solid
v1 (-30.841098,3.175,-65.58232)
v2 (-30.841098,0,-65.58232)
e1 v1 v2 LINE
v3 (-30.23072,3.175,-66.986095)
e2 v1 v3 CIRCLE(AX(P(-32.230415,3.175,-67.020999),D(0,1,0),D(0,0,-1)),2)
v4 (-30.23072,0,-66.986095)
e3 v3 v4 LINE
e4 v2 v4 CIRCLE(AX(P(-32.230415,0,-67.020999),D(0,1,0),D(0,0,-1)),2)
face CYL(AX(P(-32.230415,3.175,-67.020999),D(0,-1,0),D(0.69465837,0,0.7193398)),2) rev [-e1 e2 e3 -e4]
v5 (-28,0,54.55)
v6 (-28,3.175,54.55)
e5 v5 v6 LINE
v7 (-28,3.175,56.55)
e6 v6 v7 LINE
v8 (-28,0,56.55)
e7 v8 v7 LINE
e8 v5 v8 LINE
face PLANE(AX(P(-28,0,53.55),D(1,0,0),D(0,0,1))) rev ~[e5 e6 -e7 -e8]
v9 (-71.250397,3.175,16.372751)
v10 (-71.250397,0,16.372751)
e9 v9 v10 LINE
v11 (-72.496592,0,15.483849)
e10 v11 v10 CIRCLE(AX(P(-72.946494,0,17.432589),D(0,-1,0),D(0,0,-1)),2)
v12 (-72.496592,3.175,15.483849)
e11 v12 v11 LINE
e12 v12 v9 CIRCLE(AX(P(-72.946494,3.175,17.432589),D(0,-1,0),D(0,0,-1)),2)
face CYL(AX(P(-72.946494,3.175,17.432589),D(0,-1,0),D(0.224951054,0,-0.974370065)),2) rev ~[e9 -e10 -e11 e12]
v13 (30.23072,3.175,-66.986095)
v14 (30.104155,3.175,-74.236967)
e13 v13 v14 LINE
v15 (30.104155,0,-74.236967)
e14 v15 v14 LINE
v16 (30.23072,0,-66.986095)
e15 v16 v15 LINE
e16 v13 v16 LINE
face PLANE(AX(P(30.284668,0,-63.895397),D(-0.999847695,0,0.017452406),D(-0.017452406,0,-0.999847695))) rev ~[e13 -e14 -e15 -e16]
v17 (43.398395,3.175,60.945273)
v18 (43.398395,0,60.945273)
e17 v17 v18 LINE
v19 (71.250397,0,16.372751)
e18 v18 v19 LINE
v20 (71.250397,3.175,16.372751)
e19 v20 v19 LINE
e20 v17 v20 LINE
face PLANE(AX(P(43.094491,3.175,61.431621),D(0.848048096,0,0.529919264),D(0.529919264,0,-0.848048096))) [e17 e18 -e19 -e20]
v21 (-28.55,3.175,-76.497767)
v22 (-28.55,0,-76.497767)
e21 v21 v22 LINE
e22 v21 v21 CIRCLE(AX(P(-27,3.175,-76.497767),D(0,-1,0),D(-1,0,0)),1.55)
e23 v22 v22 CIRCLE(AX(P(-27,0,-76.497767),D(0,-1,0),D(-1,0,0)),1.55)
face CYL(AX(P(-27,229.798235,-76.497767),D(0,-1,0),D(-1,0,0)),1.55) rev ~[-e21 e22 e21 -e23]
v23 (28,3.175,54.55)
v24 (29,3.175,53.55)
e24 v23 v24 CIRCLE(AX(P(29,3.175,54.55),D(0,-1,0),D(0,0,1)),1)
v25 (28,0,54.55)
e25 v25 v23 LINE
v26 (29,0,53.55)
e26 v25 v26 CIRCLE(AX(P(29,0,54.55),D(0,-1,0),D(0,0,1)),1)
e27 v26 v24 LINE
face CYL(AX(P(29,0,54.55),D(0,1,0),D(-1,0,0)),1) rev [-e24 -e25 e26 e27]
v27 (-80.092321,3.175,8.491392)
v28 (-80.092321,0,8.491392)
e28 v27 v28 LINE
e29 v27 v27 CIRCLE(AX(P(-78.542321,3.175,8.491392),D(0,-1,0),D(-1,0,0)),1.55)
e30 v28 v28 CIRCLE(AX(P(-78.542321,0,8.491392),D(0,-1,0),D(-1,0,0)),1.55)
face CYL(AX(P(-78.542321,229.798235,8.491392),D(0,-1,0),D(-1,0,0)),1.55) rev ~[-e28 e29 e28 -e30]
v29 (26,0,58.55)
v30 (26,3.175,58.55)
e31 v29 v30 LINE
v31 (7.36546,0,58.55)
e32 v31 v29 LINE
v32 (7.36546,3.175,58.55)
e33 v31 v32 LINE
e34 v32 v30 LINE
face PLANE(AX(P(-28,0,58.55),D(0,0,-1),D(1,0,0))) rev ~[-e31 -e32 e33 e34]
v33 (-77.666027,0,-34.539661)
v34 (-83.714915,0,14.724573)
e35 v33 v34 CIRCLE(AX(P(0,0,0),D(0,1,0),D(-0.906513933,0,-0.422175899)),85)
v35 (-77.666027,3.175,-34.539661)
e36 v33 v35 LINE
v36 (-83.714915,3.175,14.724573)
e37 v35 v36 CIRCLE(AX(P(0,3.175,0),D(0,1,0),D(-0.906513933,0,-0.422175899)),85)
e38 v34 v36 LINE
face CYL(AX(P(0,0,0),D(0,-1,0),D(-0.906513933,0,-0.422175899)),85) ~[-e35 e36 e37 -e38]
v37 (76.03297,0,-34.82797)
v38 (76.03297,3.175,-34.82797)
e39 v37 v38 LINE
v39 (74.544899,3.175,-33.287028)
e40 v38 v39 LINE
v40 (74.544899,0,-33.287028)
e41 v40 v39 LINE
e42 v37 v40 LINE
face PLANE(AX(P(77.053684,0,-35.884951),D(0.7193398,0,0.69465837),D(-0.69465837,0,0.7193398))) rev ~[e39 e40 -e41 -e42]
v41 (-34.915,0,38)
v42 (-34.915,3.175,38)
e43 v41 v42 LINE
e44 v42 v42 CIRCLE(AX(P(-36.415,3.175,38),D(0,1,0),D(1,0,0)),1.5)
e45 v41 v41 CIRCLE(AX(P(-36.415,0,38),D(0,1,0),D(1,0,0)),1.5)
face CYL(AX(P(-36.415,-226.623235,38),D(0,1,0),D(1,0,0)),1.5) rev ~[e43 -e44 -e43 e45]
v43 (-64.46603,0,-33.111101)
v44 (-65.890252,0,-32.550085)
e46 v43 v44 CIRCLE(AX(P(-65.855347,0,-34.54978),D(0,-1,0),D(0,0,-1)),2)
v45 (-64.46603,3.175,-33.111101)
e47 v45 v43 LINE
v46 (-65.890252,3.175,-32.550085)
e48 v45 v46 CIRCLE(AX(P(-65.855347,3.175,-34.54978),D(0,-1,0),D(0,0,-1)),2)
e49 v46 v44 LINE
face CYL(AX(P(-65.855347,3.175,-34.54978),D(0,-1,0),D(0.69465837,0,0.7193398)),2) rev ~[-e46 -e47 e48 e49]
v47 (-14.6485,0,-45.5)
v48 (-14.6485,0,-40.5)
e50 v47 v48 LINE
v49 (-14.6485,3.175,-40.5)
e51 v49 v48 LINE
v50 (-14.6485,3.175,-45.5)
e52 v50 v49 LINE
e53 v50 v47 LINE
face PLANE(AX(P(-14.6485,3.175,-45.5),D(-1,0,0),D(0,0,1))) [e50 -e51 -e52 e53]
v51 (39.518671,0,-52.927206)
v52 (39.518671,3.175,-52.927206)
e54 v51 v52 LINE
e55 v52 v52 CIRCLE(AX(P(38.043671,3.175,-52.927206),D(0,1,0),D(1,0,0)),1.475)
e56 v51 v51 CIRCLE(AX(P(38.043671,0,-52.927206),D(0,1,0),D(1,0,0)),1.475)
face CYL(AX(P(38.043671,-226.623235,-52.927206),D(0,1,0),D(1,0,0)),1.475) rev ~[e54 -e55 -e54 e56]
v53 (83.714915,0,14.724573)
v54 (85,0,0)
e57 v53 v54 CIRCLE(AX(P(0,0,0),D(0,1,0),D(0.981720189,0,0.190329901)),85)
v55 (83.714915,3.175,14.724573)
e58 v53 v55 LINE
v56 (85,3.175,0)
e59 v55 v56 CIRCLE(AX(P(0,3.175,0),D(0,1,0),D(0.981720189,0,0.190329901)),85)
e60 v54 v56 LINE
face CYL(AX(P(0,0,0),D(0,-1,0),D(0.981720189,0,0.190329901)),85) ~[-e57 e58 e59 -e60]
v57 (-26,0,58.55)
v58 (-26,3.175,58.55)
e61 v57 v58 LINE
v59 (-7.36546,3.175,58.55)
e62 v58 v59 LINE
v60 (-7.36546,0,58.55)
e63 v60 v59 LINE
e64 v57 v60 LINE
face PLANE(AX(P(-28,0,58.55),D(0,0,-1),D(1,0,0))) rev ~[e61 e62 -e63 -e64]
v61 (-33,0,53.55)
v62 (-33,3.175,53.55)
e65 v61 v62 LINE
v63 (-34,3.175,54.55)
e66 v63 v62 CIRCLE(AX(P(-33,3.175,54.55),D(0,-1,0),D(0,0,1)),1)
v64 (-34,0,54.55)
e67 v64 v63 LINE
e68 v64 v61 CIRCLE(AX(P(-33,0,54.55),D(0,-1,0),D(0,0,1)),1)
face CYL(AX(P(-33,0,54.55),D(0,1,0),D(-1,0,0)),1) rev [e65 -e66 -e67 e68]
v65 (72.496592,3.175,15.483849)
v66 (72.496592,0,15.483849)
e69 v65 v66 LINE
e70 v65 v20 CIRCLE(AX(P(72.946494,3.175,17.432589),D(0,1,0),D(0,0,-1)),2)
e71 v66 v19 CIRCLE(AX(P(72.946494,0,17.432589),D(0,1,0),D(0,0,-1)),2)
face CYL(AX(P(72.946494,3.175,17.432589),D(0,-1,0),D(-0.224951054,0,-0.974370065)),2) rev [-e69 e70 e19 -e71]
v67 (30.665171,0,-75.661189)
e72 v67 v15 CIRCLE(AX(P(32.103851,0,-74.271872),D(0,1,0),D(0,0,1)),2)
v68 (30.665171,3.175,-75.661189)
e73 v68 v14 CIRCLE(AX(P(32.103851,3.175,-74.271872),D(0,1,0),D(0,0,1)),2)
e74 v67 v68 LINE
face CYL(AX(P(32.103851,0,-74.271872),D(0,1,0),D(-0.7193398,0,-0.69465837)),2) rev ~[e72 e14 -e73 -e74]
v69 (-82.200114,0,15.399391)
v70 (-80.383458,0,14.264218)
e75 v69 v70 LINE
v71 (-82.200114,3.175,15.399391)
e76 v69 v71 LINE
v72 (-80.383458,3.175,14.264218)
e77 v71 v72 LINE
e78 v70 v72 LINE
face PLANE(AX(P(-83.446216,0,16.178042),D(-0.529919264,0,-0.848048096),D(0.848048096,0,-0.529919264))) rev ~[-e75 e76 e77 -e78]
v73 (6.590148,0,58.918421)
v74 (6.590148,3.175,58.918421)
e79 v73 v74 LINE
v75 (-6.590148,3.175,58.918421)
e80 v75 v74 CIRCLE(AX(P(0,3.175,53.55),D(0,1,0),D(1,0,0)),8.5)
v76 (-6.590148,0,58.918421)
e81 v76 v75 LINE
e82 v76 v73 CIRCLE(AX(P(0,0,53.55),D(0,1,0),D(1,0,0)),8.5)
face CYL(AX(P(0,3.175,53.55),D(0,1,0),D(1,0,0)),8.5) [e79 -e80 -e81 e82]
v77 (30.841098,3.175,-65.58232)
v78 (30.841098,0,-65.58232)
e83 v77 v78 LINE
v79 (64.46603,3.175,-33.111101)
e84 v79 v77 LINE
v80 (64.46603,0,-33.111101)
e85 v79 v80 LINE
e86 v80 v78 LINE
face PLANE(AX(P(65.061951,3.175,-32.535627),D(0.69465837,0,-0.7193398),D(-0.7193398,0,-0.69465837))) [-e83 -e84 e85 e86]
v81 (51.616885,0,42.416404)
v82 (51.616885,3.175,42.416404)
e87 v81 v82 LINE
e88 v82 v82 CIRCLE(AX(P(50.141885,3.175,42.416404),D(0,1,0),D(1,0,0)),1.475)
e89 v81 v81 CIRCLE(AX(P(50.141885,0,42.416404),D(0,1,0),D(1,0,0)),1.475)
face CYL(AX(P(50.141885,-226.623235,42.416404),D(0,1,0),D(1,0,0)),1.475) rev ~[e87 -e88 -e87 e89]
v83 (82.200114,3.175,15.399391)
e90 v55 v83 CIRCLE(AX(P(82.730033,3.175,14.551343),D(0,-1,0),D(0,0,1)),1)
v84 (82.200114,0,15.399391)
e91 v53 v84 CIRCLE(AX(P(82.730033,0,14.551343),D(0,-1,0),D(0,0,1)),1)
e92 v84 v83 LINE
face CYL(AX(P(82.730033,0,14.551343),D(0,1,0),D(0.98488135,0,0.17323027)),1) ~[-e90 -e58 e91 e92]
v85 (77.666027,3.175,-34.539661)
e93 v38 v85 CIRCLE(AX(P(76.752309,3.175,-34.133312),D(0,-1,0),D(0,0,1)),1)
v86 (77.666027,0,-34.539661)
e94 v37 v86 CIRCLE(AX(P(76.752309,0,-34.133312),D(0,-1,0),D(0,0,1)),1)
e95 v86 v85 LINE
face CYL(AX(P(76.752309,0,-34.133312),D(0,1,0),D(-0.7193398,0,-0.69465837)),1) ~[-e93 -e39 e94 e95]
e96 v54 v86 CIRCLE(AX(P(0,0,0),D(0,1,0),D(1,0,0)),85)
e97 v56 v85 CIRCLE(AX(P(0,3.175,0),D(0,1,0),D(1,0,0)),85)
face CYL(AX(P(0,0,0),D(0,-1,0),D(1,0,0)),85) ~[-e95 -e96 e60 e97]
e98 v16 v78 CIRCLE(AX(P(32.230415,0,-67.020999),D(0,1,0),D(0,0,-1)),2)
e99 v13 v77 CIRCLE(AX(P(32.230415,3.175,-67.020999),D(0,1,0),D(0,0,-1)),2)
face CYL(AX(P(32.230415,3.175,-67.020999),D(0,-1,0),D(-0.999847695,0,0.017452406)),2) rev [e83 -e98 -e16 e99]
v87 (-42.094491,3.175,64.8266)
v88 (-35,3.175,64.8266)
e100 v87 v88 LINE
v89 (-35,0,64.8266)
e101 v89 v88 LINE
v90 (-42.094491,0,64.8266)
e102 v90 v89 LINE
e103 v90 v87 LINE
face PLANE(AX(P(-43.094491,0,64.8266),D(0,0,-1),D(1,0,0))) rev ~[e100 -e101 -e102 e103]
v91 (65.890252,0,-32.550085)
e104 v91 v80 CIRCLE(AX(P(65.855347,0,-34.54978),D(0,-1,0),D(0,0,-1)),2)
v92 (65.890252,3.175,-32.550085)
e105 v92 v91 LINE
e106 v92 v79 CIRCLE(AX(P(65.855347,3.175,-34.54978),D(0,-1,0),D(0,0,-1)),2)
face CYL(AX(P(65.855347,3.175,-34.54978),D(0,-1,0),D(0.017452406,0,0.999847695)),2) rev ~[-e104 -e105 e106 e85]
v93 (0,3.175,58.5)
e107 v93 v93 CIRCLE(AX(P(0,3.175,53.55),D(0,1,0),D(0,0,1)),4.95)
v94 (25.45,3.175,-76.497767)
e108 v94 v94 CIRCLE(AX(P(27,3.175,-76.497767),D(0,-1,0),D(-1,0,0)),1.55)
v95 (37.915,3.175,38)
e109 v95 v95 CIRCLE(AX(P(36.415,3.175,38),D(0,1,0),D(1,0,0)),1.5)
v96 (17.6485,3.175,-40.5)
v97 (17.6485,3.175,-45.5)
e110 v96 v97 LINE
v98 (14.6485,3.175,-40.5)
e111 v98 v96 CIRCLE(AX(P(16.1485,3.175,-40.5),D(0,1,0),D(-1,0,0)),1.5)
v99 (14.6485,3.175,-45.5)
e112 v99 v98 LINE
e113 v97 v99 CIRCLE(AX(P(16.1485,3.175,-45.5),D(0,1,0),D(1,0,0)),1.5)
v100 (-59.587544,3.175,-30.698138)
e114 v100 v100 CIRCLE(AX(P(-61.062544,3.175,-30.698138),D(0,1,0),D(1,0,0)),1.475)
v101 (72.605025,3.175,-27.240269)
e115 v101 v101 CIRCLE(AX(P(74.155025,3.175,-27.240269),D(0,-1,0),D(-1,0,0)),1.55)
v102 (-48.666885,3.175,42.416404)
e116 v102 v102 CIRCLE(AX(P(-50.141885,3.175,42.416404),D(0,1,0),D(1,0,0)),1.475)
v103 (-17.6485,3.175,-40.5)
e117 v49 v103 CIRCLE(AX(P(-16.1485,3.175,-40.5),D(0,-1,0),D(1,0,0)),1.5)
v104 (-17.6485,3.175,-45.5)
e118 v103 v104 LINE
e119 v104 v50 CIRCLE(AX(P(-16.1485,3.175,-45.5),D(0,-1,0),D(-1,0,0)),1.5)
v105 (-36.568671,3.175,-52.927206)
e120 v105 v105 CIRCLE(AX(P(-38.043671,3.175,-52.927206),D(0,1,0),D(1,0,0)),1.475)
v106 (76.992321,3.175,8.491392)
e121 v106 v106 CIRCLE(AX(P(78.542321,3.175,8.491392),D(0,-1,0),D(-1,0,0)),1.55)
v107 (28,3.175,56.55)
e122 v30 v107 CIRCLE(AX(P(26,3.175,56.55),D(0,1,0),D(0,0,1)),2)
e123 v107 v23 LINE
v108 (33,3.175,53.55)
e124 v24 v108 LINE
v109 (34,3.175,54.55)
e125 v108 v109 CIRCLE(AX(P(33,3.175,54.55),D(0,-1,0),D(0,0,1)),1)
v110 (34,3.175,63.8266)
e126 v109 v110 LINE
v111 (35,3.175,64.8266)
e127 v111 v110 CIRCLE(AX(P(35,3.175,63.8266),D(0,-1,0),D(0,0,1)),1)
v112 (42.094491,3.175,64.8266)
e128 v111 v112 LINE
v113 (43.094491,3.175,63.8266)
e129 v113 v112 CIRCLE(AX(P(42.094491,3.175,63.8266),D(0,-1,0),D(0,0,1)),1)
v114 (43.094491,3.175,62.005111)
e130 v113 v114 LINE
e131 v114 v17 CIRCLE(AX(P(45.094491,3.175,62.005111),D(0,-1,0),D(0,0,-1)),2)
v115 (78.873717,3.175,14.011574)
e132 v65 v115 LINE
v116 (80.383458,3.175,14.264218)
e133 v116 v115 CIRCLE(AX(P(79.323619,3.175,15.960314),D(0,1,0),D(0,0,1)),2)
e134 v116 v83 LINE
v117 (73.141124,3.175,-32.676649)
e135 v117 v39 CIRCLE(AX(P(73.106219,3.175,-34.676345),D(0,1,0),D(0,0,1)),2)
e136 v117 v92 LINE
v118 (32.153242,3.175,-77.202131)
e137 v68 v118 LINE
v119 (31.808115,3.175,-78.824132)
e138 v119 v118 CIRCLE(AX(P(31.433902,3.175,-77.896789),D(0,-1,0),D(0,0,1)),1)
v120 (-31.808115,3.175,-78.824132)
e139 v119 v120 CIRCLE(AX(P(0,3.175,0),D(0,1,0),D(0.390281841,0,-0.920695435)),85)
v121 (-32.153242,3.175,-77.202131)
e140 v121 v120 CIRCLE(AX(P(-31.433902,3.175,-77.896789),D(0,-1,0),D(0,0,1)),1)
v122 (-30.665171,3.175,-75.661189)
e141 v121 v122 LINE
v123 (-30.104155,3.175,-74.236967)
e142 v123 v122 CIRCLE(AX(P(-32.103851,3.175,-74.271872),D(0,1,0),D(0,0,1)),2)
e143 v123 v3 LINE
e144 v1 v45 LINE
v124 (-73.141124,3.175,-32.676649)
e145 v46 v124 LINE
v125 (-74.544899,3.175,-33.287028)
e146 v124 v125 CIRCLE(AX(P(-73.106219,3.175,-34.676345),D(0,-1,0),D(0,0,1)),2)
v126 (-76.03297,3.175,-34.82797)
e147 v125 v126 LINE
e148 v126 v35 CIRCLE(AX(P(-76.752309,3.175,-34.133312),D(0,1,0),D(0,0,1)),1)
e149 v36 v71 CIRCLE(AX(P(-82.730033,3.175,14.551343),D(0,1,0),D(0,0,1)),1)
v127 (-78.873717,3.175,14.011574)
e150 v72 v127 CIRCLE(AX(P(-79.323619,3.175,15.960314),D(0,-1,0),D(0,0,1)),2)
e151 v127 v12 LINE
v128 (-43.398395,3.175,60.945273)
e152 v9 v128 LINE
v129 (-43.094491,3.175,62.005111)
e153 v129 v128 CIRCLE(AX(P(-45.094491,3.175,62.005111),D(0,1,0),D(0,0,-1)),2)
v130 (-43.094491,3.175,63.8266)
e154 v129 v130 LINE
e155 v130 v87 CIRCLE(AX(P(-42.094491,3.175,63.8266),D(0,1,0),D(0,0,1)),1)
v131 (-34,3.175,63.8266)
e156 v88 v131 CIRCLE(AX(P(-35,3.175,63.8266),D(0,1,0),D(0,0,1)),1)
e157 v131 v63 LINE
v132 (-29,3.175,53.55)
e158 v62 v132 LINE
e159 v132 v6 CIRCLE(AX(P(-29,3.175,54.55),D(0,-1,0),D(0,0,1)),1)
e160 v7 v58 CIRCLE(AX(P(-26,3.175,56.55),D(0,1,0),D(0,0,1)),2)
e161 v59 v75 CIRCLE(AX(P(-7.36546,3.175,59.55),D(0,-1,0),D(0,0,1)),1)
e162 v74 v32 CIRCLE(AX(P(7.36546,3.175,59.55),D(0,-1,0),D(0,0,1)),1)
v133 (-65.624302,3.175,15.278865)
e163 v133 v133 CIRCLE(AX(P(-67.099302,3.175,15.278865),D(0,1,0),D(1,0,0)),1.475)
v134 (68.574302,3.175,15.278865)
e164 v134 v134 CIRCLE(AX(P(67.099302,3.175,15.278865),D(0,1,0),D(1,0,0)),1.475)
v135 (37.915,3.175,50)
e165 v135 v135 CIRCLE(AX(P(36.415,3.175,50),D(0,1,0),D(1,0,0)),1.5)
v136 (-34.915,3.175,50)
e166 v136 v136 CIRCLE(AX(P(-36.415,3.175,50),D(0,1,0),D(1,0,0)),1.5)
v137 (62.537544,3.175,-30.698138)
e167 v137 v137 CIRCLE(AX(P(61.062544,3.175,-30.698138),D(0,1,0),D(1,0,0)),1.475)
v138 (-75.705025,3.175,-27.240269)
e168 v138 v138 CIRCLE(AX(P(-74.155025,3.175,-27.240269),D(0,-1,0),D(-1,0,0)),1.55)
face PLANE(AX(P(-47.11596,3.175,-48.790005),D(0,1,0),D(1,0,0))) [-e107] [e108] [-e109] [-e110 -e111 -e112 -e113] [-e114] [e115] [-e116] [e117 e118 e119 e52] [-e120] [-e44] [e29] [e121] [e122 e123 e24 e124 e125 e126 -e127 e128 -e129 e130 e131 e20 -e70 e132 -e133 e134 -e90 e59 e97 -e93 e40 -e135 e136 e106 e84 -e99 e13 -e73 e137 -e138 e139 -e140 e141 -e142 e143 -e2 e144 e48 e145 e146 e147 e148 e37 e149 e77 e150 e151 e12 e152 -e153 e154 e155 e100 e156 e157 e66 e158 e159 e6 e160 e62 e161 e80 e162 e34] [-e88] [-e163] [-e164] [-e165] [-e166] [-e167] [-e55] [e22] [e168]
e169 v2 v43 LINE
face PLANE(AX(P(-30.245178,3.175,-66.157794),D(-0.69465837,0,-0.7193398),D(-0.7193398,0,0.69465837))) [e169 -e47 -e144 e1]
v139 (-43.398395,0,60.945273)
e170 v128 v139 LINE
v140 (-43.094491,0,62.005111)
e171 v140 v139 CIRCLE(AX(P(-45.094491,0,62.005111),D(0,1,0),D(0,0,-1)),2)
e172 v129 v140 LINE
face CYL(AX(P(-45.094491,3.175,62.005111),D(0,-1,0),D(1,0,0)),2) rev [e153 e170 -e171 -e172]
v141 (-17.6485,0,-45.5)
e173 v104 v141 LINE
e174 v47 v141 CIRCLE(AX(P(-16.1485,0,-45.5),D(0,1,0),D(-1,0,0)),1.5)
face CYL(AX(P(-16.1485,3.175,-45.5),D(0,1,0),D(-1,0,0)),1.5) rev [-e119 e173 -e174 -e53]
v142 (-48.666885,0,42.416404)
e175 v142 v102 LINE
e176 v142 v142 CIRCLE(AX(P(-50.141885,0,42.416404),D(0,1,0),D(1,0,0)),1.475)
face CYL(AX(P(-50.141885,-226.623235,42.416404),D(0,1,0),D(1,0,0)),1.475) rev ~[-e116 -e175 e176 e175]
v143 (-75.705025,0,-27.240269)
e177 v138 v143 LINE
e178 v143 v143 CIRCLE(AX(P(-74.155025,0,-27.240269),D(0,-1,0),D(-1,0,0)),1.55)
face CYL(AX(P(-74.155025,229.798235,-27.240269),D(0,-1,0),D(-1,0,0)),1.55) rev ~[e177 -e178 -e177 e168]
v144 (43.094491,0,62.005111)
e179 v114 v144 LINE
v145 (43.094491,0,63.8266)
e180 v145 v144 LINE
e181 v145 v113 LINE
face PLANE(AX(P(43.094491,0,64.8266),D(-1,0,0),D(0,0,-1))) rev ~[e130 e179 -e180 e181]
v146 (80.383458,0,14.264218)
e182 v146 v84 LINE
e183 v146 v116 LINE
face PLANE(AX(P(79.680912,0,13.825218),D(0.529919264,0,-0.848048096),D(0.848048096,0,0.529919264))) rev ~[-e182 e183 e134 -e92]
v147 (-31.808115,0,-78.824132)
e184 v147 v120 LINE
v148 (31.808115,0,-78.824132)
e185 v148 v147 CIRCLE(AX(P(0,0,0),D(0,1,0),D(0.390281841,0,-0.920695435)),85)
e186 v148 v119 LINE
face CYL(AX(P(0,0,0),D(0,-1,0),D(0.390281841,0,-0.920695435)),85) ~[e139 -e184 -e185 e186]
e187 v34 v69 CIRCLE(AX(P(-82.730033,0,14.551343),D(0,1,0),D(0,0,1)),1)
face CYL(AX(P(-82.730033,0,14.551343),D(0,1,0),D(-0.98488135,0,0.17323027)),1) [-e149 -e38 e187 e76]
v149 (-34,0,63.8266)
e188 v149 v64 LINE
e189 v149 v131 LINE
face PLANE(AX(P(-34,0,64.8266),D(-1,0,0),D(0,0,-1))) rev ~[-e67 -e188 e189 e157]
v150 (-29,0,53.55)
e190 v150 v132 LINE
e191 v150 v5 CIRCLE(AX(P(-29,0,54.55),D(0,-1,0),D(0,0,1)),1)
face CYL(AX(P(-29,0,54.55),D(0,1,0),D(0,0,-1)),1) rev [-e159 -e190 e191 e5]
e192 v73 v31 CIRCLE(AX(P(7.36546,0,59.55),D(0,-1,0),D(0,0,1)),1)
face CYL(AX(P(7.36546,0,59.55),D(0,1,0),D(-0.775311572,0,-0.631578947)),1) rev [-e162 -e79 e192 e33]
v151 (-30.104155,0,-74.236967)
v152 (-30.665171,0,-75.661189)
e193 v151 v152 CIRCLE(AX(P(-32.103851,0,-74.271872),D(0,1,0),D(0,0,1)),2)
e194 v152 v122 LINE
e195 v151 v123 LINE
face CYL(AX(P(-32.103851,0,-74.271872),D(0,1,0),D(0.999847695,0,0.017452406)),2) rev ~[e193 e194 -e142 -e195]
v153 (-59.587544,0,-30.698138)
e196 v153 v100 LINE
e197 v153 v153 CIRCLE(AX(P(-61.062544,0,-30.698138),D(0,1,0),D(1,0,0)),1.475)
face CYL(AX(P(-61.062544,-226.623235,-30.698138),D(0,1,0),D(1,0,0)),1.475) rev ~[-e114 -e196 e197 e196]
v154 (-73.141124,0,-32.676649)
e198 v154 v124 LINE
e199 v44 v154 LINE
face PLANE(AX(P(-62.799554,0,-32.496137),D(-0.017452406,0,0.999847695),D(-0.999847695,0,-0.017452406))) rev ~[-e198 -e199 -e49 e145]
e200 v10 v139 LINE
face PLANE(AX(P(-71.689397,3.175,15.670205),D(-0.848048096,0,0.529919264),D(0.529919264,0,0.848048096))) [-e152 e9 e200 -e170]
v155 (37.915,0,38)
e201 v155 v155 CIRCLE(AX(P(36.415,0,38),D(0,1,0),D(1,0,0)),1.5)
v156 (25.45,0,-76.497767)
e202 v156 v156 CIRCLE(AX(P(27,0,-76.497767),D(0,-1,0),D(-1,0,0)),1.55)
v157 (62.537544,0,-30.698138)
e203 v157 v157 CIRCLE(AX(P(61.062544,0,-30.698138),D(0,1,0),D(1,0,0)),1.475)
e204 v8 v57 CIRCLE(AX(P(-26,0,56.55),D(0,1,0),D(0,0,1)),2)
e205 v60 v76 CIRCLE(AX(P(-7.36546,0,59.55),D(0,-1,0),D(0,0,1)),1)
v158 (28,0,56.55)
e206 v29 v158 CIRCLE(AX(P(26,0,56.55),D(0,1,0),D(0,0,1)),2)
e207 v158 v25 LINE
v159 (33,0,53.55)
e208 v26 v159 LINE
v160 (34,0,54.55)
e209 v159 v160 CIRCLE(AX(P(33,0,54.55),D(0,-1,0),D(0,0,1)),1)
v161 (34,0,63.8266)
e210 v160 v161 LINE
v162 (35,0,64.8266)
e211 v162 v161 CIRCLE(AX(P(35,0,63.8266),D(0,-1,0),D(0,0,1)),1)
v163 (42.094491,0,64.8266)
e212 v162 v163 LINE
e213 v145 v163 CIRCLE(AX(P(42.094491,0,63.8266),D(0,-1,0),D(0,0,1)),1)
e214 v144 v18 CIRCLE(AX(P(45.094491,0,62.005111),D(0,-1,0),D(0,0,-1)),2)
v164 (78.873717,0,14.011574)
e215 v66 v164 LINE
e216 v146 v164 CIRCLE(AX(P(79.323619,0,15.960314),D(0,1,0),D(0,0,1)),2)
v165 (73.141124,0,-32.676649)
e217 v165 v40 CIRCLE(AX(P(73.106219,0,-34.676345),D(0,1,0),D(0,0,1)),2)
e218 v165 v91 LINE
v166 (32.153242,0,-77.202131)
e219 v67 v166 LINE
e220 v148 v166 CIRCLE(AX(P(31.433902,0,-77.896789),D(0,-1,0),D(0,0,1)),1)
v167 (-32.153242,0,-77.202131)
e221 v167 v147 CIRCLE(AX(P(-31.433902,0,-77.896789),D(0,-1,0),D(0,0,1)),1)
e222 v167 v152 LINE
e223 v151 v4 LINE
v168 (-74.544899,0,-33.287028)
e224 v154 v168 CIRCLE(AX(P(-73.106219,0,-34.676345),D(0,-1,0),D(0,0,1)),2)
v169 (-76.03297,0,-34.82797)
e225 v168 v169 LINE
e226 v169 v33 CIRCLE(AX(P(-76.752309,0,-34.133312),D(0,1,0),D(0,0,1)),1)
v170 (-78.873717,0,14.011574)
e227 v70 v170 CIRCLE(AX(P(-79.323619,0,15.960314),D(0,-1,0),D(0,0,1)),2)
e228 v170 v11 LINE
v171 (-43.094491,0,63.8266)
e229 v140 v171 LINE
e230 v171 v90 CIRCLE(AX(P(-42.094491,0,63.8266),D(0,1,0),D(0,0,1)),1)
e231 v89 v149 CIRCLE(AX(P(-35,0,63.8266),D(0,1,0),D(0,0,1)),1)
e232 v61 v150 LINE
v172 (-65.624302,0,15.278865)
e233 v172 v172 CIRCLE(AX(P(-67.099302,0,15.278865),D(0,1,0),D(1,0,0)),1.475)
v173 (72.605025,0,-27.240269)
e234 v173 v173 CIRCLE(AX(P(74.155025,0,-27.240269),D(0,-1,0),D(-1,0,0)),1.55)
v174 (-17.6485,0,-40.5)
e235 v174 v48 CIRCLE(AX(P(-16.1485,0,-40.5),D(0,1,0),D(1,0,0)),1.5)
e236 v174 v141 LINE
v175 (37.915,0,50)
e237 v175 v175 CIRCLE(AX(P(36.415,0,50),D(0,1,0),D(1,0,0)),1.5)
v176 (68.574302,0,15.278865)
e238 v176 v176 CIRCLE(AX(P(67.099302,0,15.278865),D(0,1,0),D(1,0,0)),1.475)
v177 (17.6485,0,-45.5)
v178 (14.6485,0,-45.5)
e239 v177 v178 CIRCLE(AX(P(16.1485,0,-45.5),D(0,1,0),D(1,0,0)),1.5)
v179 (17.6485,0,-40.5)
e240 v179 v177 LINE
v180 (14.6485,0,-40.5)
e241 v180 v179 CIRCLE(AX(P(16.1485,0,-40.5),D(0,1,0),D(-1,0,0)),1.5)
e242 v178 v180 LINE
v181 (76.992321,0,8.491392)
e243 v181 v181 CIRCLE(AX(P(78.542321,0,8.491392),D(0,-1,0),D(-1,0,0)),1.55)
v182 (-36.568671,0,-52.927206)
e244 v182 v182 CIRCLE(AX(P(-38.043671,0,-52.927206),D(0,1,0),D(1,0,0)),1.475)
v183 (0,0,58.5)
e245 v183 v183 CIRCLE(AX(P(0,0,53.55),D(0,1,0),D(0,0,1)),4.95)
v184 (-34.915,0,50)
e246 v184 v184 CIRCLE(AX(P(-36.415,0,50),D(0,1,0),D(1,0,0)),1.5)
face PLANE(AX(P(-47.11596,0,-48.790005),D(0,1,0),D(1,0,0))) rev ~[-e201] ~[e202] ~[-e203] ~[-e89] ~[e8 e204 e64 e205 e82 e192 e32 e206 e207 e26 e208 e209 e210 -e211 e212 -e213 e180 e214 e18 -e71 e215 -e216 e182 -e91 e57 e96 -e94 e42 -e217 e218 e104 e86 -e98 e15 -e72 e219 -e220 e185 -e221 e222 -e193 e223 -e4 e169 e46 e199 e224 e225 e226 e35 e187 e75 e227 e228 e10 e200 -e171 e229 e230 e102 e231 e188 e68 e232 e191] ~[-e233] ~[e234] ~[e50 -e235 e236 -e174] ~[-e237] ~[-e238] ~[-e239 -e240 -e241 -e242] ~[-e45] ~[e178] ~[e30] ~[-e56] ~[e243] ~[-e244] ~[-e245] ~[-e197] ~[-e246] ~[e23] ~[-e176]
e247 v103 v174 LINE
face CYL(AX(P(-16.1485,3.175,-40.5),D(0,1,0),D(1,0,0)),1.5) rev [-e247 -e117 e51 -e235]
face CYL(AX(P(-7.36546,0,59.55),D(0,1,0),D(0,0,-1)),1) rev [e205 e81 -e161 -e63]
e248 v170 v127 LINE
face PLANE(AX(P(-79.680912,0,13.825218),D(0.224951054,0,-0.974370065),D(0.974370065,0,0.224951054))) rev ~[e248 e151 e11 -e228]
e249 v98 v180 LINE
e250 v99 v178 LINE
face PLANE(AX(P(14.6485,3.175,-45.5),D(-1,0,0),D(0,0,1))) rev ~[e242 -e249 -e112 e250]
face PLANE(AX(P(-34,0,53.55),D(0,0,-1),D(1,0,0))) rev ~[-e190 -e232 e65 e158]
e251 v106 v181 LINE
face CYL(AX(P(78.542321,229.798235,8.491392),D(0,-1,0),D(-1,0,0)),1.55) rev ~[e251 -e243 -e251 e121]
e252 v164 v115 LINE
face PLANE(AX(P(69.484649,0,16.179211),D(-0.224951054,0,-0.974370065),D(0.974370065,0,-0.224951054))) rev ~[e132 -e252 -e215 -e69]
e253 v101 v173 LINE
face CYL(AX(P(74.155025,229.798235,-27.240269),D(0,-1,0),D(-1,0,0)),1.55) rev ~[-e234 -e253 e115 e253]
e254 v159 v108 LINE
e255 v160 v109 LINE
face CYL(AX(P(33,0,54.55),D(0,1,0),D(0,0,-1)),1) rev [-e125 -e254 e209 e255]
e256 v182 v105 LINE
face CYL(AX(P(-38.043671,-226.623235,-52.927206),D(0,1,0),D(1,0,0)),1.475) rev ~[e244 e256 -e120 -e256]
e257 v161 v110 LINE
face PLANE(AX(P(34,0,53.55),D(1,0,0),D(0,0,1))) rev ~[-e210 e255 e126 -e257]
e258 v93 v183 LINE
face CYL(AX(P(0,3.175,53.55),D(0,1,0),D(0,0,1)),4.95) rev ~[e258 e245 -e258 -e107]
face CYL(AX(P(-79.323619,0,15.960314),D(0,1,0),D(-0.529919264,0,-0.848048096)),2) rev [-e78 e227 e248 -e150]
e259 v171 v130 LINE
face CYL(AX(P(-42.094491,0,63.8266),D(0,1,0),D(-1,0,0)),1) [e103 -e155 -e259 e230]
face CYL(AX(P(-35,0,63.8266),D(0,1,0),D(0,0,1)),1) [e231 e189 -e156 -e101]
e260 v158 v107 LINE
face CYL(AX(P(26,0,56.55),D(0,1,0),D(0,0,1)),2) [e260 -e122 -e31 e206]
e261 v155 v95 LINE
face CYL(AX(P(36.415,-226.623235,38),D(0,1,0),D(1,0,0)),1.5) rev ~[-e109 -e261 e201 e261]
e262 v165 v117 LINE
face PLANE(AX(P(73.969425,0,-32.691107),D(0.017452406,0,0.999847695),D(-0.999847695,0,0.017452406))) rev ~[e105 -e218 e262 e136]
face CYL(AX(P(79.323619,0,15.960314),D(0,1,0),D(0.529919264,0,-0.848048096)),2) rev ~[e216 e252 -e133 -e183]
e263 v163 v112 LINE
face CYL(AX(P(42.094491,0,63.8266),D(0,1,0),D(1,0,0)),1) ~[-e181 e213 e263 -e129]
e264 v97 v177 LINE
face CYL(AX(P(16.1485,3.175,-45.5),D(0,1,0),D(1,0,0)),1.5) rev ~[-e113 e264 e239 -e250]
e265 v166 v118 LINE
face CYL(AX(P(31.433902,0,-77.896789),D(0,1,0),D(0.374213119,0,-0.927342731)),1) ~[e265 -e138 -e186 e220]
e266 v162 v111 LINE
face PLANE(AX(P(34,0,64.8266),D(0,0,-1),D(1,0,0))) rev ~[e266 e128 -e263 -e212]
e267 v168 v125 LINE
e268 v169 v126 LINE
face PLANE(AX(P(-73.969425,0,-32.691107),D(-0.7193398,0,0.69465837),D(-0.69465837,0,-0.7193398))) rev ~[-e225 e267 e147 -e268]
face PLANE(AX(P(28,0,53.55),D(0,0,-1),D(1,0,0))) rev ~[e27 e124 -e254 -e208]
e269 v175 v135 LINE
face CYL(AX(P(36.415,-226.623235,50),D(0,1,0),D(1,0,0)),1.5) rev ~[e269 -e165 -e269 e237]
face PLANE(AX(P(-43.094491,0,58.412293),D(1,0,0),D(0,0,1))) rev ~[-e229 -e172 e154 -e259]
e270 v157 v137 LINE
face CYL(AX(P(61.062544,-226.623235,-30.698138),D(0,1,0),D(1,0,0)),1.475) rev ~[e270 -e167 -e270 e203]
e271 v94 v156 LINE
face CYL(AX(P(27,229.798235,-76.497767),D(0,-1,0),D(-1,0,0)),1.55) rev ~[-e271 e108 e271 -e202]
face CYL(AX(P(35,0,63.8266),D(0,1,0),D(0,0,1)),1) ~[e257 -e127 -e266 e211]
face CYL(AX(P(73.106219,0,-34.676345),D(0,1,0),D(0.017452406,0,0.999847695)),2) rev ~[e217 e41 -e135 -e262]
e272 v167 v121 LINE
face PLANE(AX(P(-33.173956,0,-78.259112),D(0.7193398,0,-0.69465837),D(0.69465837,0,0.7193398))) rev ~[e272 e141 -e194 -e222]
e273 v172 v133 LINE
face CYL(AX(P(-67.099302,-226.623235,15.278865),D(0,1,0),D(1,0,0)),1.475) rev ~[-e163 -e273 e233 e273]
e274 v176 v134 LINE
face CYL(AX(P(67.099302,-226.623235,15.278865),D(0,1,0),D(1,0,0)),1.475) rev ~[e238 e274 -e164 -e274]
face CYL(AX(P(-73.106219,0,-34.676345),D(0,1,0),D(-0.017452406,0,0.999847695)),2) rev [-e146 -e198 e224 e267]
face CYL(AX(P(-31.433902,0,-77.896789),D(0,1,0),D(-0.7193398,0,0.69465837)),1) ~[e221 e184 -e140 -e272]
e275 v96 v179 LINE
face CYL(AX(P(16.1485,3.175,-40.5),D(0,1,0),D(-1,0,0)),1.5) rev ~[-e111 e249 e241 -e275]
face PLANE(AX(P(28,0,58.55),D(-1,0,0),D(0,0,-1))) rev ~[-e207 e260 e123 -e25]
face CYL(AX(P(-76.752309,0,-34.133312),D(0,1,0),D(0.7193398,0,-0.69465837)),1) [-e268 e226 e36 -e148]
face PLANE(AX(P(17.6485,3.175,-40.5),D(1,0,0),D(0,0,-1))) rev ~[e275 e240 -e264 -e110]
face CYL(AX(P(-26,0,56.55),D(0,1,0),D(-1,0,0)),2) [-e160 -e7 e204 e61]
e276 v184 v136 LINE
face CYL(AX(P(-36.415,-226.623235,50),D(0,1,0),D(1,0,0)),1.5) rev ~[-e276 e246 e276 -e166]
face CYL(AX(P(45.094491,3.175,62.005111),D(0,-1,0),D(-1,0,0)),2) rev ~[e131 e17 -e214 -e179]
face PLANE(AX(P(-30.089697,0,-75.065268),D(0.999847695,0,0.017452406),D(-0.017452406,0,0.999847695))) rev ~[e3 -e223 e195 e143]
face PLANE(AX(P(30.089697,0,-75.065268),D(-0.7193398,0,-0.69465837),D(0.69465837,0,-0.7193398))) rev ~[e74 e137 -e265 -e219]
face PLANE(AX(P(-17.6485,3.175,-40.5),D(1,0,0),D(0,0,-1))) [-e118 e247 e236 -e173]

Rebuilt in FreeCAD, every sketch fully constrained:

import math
import FreeCAD as App
import Part
import Sketcher
Q = App.Units.Quantity


def edges_at(feature, points):
    """Names of the edges that pass closest to the given points."""
    edges = feature.Shape.Edges
    near = lambda p: min(range(len(edges)), key=lambda i: edges[i].distToShape(Part.Vertex(*p))[0])
    return sorted({f"Edge{near(p) + 1}" for p in points})


def add_polygon(sketch, points):
    """Adds a closed chain of lines whose ends are joined by coincident constraints."""
    first, n = sketch.GeometryCount, len(points)
    for a, b in zip(points, points[1:] + points[:1]):
        sketch.addGeometry(Part.LineSegment(App.Vector(*a, 0), App.Vector(*b, 0)), False)
    for i in range(n):
        sketch.addConstraint(Sketcher.Constraint("Coincident", first + i, 2, first + (i + 1) % n, 1))

doc = App.newDocument("Part")
body = doc.addObject("PartDesign::Body", "Body")

# Sketch on XZ plane
sketch1 = doc.addObject("Sketcher::SketchObject", "Sketch")
body.addObject(sketch1)
sketch1.AttachmentSupport = (doc.XZ_Plane, [""])
sketch1.MapMode = "FlatFace"
sketch1.addGeometry([
    Part.LineSegment(App.Vector(-62.8, -32.5, 0), App.Vector(-74, -32.7, 0)),  # 0
    Part.LineSegment(App.Vector(-74, -32.7, 0), App.Vector(-77.1, -35.9, 0)),  # 1
    Part.ArcOfCircle(Part.Circle(App.Vector(0, 0, 0), App.Vector(0, 0, 1), 85), math.radians(169), math.radians(205)),  # 2
    Part.LineSegment(App.Vector(-83.4, 16.2, 0), App.Vector(-79.7, 13.8, 0)),  # 3
    Part.LineSegment(App.Vector(-79.7, 13.8, 0), App.Vector(-69.5, 16.2, 0)),  # 4
    Part.LineSegment(App.Vector(-69.5, 16.2, 0), App.Vector(-43.1, 58.4, 0)),  # 5
    Part.LineSegment(App.Vector(-43.1, 58.4, 0), App.Vector(-43.1, 64.8, 0)),  # 6
    Part.LineSegment(App.Vector(-43.1, 64.8, 0), App.Vector(-34, 64.8, 0)),  # 7
    Part.LineSegment(App.Vector(-34, 64.8, 0), App.Vector(-34, 53.5, 0)),  # 8
    Part.LineSegment(App.Vector(-34, 53.5, 0), App.Vector(-28, 53.5, 0)),  # 9
    Part.LineSegment(App.Vector(-28, 53.5, 0), App.Vector(-28, 58.5, 0)),  # 10
    Part.LineSegment(App.Vector(-28, 58.5, 0), App.Vector(28, 58.5, 0)),  # 11
    Part.LineSegment(App.Vector(28, 58.5, 0), App.Vector(28, 53.5, 0)),  # 12
    Part.LineSegment(App.Vector(28, 53.5, 0), App.Vector(34, 53.5, 0)),  # 13
    Part.LineSegment(App.Vector(34, 53.5, 0), App.Vector(34, 64.8, 0)),  # 14
    Part.LineSegment(App.Vector(34, 64.8, 0), App.Vector(43.1, 64.8, 0)),  # 15
    Part.LineSegment(App.Vector(43.1, 64.8, 0), App.Vector(43.1, 58.4, 0)),  # 16
    Part.LineSegment(App.Vector(43.1, 58.4, 0), App.Vector(69.5, 16.2, 0)),  # 17
    Part.LineSegment(App.Vector(69.5, 16.2, 0), App.Vector(79.7, 13.8, 0)),  # 18
    Part.LineSegment(App.Vector(79.7, 13.8, 0), App.Vector(83.4, 16.2, 0)),  # 19
    Part.ArcOfCircle(Part.Circle(App.Vector(0, 0, 0), App.Vector(0, 0, 1), 85), math.radians(0), math.radians(10.97)),  # 20
    Part.ArcOfCircle(Part.Circle(App.Vector(0, 0, 0), App.Vector(0, 0, 1), 85), math.radians(-25), math.radians(0)),  # 21
    Part.LineSegment(App.Vector(77.1, -35.9, 0), App.Vector(74, -32.7, 0)),  # 22
    Part.LineSegment(App.Vector(74, -32.7, 0), App.Vector(62.8, -32.5, 0)),  # 23
    Part.LineSegment(App.Vector(62.8, -32.5, 0), App.Vector(30.3, -63.9, 0)),  # 24
    Part.LineSegment(App.Vector(30.3, -63.9, 0), App.Vector(30.1, -75.1, 0)),  # 25
    Part.LineSegment(App.Vector(30.1, -75.1, 0), App.Vector(33.2, -78.3, 0)),  # 26
    Part.ArcOfCircle(Part.Circle(App.Vector(0, 0, 0), App.Vector(0, 0, 1), 85), math.radians(-113), math.radians(-67)),  # 27
    Part.LineSegment(App.Vector(-33.2, -78.3, 0), App.Vector(-30.1, -75.1, 0)),  # 28
    Part.LineSegment(App.Vector(-30.1, -75.1, 0), App.Vector(-30.3, -63.9, 0)),  # 29
    Part.LineSegment(App.Vector(-30.3, -63.9, 0), App.Vector(-62.8, -32.5, 0)),  # 30
], False)
sketch1.addConstraint([
    Sketcher.Constraint("Coincident", 0, 2, 1, 1),
    Sketcher.Constraint("Coincident", 1, 2, 2, 2),
    Sketcher.Constraint("Coincident", 2, 1, 3, 1),
    Sketcher.Constraint("Coincident", 3, 2, 4, 1),
    Sketcher.Constraint("Coincident", 4, 2, 5, 1),
    Sketcher.Constraint("Coincident", 5, 2, 6, 1),
    Sketcher.Constraint("Coincident", 6, 2, 7, 1),
    Sketcher.Constraint("Coincident", 7, 2, 8, 1),
    Sketcher.Constraint("Coincident", 8, 2, 9, 1),
    Sketcher.Constraint("Coincident", 9, 2, 10, 1),
    Sketcher.Constraint("Coincident", 10, 2, 11, 1),
    Sketcher.Constraint("Coincident", 11, 2, 12, 1),
    Sketcher.Constraint("Coincident", 12, 2, 13, 1),
    Sketcher.Constraint("Coincident", 13, 2, 14, 1),
    Sketcher.Constraint("Coincident", 14, 2, 15, 1),
    Sketcher.Constraint("Coincident", 15, 2, 16, 1),
    Sketcher.Constraint("Coincident", 16, 2, 17, 1),
    Sketcher.Constraint("Coincident", 17, 2, 18, 1),
    Sketcher.Constraint("Coincident", 18, 2, 19, 1),
    Sketcher.Constraint("Coincident", 19, 2, 20, 2),
    Sketcher.Constraint("Tangent", 20, 1, 21, 2),
    Sketcher.Constraint("Coincident", 21, 1, 22, 1),
    Sketcher.Constraint("Coincident", 22, 2, 23, 1),
    Sketcher.Constraint("Coincident", 23, 2, 24, 1),
    Sketcher.Constraint("Coincident", 24, 2, 25, 1),
    Sketcher.Constraint("Coincident", 25, 2, 26, 1),
    Sketcher.Constraint("Coincident", 26, 2, 27, 2),
    Sketcher.Constraint("Coincident", 27, 1, 28, 1),
    Sketcher.Constraint("Coincident", 28, 2, 29, 1),
    Sketcher.Constraint("Coincident", 29, 2, 30, 1),
    Sketcher.Constraint("Coincident", 30, 2, 0, 1),
    Sketcher.Constraint("Vertical", 6),
    Sketcher.Constraint("Horizontal", 7),
    Sketcher.Constraint("Vertical", 8),
    Sketcher.Constraint("Horizontal", 9),
    Sketcher.Constraint("Vertical", 10),
    Sketcher.Constraint("Horizontal", 11),
    Sketcher.Constraint("Vertical", 12),
    Sketcher.Constraint("Horizontal", 13),
    Sketcher.Constraint("Vertical", 14),
    Sketcher.Constraint("Horizontal", 15),
    Sketcher.Constraint("Vertical", 16),
    Sketcher.Constraint("Coincident", 2, 3, -1, 1),
    Sketcher.Constraint("Coincident", 20, 3, -1, 1),
    Sketcher.Constraint("Coincident", 27, 3, -1, 1),
    Sketcher.Constraint("Equal", 2, 20),
    Sketcher.Constraint("Equal", 20, 21),
    Sketcher.Constraint("Equal", 21, 27),
    Sketcher.Constraint("Symmetric", 9, 2, 12, 2, -2),
    Sketcher.Constraint("Symmetric", 7, 2, 14, 2, -2),
    Sketcher.Constraint("Symmetric", 5, 2, 16, 2, -2),
    Sketcher.Constraint("Symmetric", 4, 2, 17, 2, -2),
    Sketcher.Constraint("Symmetric", 3, 2, 18, 2, -2),
    Sketcher.Constraint("Symmetric", 0, 2, 22, 2, -2),
    Sketcher.Constraint("Symmetric", 25, 2, 28, 2, -2),
    Sketcher.Constraint("Symmetric", 24, 2, 29, 2, -2),
    Sketcher.Constraint("Symmetric", 23, 2, 30, 2, -2),
    Sketcher.Constraint("PointOnObject", 20, 1, -1),
    Sketcher.Constraint("Perpendicular", 3, 5),
    Sketcher.Constraint("Perpendicular", 17, 19),
    Sketcher.Constraint("Perpendicular", 22, 24),
    Sketcher.Constraint("Perpendicular", 23, 25),
    Sketcher.Constraint("Perpendicular", 24, 26),
    Sketcher.Constraint("Parallel", 1, 28),
    Sketcher.Constraint("Perpendicular", 28, 30),
    Sketcher.Constraint("Equal", 1, 3),
    Sketcher.Constraint("Equal", 23, 25),
    Sketcher.Constraint("Equal", 22, 26),
    Sketcher.Constraint("Radius", 2, Q("85 mm")),
    Sketcher.Constraint("DistanceX", 9, 1, 9, 2, Q("6 mm")),
    Sketcher.Constraint("DistanceX", 11, 1, 11, 2, Q("56 mm")),
    Sketcher.Constraint("DistanceY", 10, 1, 10, 2, Q("5 mm")),
    Sketcher.Constraint("Angle", 0, Q("-179 deg")),
    Sketcher.Constraint("Angle", 1, Q("-134 deg")),
    Sketcher.Constraint("Angle", 3, Q("-32 deg")),
    Sketcher.Constraint("Angle", 4, Q("13 deg")),
    Sketcher.Constraint("DistanceY", -1, 1, 8, 2, Q("53.55 mm")),
    Sketcher.Constraint("DistanceY", 8, 2, 8, 1, Q("11.2766 mm")),
    Sketcher.Constraint("DistanceX", 7, 1, 7, 2, Q("9.094491 mm")),
    Sketcher.Constraint("Distance", 24, Q("45.20101 mm")),
    Sketcher.Constraint("DistanceY", 6, 1, 6, 2, Q("6.414308 mm")),
    Sketcher.Constraint("DistanceY", 1, 2, -1, 1, Q("35.884951 mm")),
    Sketcher.Constraint("DistanceY", -1, 1, 2, 1, Q("16.178042 mm")),
    Sketcher.Constraint("DistanceX", 3, 2, -1, 1, Q("79.680912 mm")),
])
pad1 = doc.addObject("PartDesign::Pad", "Pad")
body.addObject(pad1)
pad1.Profile = sketch1
pad1.Length = 3.175
pad1.Reversed = True

# Sketch on XZ plane
sketch2 = doc.addObject("Sketcher::SketchObject", "Sketch001")
body.addObject(sketch2)
sketch2.AttachmentSupport = (doc.XZ_Plane, [""])
sketch2.MapMode = "FlatFace"
sketch2.AttachmentOffset = App.Placement(App.Vector(0, 0, -3.175), App.Rotation())
sketch2.addGeometry(Part.Circle(App.Vector(0, 54, 0), App.Vector(0, 0, 1), 8), False)
sketch2.addConstraint([
    Sketcher.Constraint("PointOnObject", 0, 3, -2),
    Sketcher.Constraint("Diameter", 0, Q("17 mm")),
    Sketcher.Constraint("DistanceY", -1, 1, 0, 3, Q("53.55 mm")),
])
pad2 = doc.addObject("PartDesign::Pad", "Pad001")
body.addObject(pad2)
pad2.Profile = sketch2
pad2.Length = 3.175

# Sketch on XZ plane
sketch3 = doc.addObject("Sketcher::SketchObject", "Sketch002")
body.addObject(sketch3)
sketch3.AttachmentSupport = (doc.XZ_Plane, [""])
sketch3.MapMode = "FlatFace"
sketch3.addGeometry([
    Part.Circle(App.Vector(-36.4, 50, 0), App.Vector(0, 0, 1), 1.5),
    Part.Circle(App.Vector(-36.4, 38, 0), App.Vector(0, 0, 1), 1.5),
    Part.Circle(App.Vector(36.4, 50, 0), App.Vector(0, 0, 1), 1.5),
    Part.Circle(App.Vector(36.4, 38, 0), App.Vector(0, 0, 1), 1.5),
], False)
sketch3.addConstraint([
    Sketcher.Constraint("Equal", 0, 1),
    Sketcher.Constraint("Equal", 1, 2),
    Sketcher.Constraint("Equal", 2, 3),
    Sketcher.Constraint("Symmetric", 0, 3, 2, 3, -2),
    Sketcher.Constraint("Symmetric", 1, 3, 3, 3, -2),
    Sketcher.Constraint("Vertical", 0, 3, 1, 3),
    Sketcher.Constraint("Diameter", 0, Q("3 mm")),
    Sketcher.Constraint("DistanceY", -1, 1, 0, 3, Q("50 mm")),
    Sketcher.Constraint("DistanceY", -1, 1, 1, 3, Q("38 mm")),
    Sketcher.Constraint("DistanceX", 0, 3, 2, 3, Q("72.83 mm")),
])
doc.recompute()
hole = doc.addObject("PartDesign::Hole", "Hole")
body.addObject(hole)
hole.Profile = sketch3
hole.ThreadType = "None"
hole.Diameter = 3
hole.DepthType = "ThroughAll"

# Sketch on XZ plane
sketch4 = doc.addObject("Sketcher::SketchObject", "Sketch003")
body.addObject(sketch4)
sketch4.AttachmentSupport = (doc.XZ_Plane, [""])
sketch4.MapMode = "FlatFace"
sketch4.AttachmentOffset = App.Placement(App.Vector(0, 0, -3.175), App.Rotation())
sketch4.addGeometry([
    Part.Circle(App.Vector(-78.5, 8.5, 0), App.Vector(0, 0, 1), 1.6),
    Part.Circle(App.Vector(78.5, 8.5, 0), App.Vector(0, 0, 1), 1.6),
    Part.Circle(App.Vector(74.2, -27.2, 0), App.Vector(0, 0, 1), 1.6),
    Part.Circle(App.Vector(-74.2, -27.2, 0), App.Vector(0, 0, 1), 1.6),
], False)
sketch4.addConstraint([
    Sketcher.Constraint("Equal", 0, 1),
    Sketcher.Constraint("Equal", 1, 2),
    Sketcher.Constraint("Equal", 2, 3),
    Sketcher.Constraint("Symmetric", 0, 3, 1, 3, -2),
    Sketcher.Constraint("Symmetric", 2, 3, 3, 3, -2),
    Sketcher.Constraint("Diameter", 0, Q("3.1 mm")),
    Sketcher.Constraint("DistanceX", 0, 3, -1, 1, Q("78.542321 mm")),
    Sketcher.Constraint("DistanceY", 2, 3, -1, 1, Q("27.240269 mm")),
    Sketcher.Constraint("DistanceY", 2, 3, 1, 3, Q("35.731661 mm")),
    Sketcher.Constraint("DistanceX", 3, 3, 2, 3, Q("148.31005 mm")),
])
doc.recompute()
hole2 = doc.addObject("PartDesign::Hole", "Hole001")
body.addObject(hole2)
hole2.Profile = sketch4
hole2.ThreadType = "None"
hole2.Diameter = 3.1
hole2.DepthType = "ThroughAll"
hole2.Reversed = True

# Sketch on XZ plane
sketch5 = doc.addObject("Sketcher::SketchObject", "Sketch004")
body.addObject(sketch5)
sketch5.AttachmentSupport = (doc.XZ_Plane, [""])
sketch5.MapMode = "FlatFace"
sketch5.addGeometry([
    Part.Circle(App.Vector(67.1, 15.3, 0), App.Vector(0, 0, 1), 1.5),  # 0
    Part.Circle(App.Vector(50.1, 42.4, 0), App.Vector(0, 0, 1), 1.5),  # 1
    Part.Circle(App.Vector(61.1, -30.7, 0), App.Vector(0, 0, 1), 1.5),  # 2
    Part.Circle(App.Vector(38, -52.9, 0), App.Vector(0, 0, 1), 1.5),  # 3
    Part.Circle(App.Vector(-50.1, 42.4, 0), App.Vector(0, 0, 1), 1.5),  # 4
    Part.Circle(App.Vector(-67.1, 15.3, 0), App.Vector(0, 0, 1), 1.5),  # 5
    Part.Circle(App.Vector(-38, -52.9, 0), App.Vector(0, 0, 1), 1.5),  # 6
    Part.Circle(App.Vector(-61.1, -30.7, 0), App.Vector(0, 0, 1), 1.5),  # 7
], False)
sketch5.addConstraint([
    Sketcher.Constraint("Equal", 0, 1),
    Sketcher.Constraint("Equal", 1, 2),
    Sketcher.Constraint("Equal", 2, 3),
    Sketcher.Constraint("Equal", 3, 4),
    Sketcher.Constraint("Equal", 4, 5),
    Sketcher.Constraint("Equal", 5, 6),
    Sketcher.Constraint("Equal", 6, 7),
    Sketcher.Constraint("Symmetric", 1, 3, 4, 3, -2),
    Sketcher.Constraint("Symmetric", 0, 3, 5, 3, -2),
    Sketcher.Constraint("Symmetric", 3, 3, 6, 3, -2),
    Sketcher.Constraint("Symmetric", 2, 3, 7, 3, -2),
    Sketcher.Constraint("Diameter", 0, Q("2.95 mm")),
    Sketcher.Constraint("DistanceX", -1, 1, 0, 3, Q("67.099302 mm")),
    Sketcher.Constraint("DistanceX", -1, 1, 3, 3, Q("38.043671 mm")),
    Sketcher.Constraint("DistanceY", 0, 3, 1, 3, Q("27.137539 mm")),
    Sketcher.Constraint("DistanceX", 1, 3, 2, 3, Q("10.920659 mm")),
    Sketcher.Constraint("DistanceY", 3, 3, 0, 3, Q("68.206071 mm")),
    Sketcher.Constraint("DistanceX", 4, 3, 1, 3, Q("100.28377 mm")),
    Sketcher.Constraint("DistanceY", -1, 1, 0, 3, Q("15.278865 mm")),
    Sketcher.Constraint("DistanceY", 2, 3, -1, 1, Q("30.698138 mm")),
])
doc.recompute()
hole3 = doc.addObject("PartDesign::Hole", "Hole002")
body.addObject(hole3)
hole3.Profile = sketch5
hole3.ThreadType = "None"
hole3.Diameter = 2.95
hole3.DepthType = "ThroughAll"

# Sketch on XZ plane
sketch6 = doc.addObject("Sketcher::SketchObject", "Sketch005")
body.addObject(sketch6)
sketch6.AttachmentSupport = (doc.XZ_Plane, [""])
sketch6.MapMode = "FlatFace"
sketch6.AttachmentOffset = App.Placement(App.Vector(0, 0, -3.175), App.Rotation())
sketch6.addGeometry([
    Part.Circle(App.Vector(27, -76.5, 0), App.Vector(0, 0, 1), 1.6),
    Part.Circle(App.Vector(-27, -76.5, 0), App.Vector(0, 0, 1), 1.6),
], False)
sketch6.addConstraint([
    Sketcher.Constraint("Equal", 0, 1),
    Sketcher.Constraint("Symmetric", 0, 3, 1, 3, -2),
    Sketcher.Constraint("Diameter", 0, Q("3.1 mm")),
    Sketcher.Constraint("DistanceX", -1, 1, 0, 3, Q("27 mm")),
    Sketcher.Constraint("DistanceY", 0, 3, -1, 1, Q("76.497767 mm")),
])
doc.recompute()
hole4 = doc.addObject("PartDesign::Hole", "Hole003")
body.addObject(hole4)
hole4.Profile = sketch6
hole4.ThreadType = "None"
hole4.Diameter = 3.1
hole4.DepthType = "ThroughAll"
hole4.Reversed = True

# Sketch on XZ plane
sketch7 = doc.addObject("Sketcher::SketchObject", "Sketch006")
body.addObject(sketch7)
sketch7.AttachmentSupport = (doc.XZ_Plane, [""])
sketch7.MapMode = "FlatFace"
sketch7.AttachmentOffset = App.Placement(App.Vector(0, 0, -3.175), App.Rotation())
sketch7.addGeometry([
    Part.LineSegment(App.Vector(-14.6, -40.5, 0), App.Vector(-14.6, -45.5, 0)),  # 0
    Part.ArcOfCircle(Part.Circle(App.Vector(-16.1, -45.5, 0), App.Vector(0, 0, 1), 1.5), math.radians(180), math.radians(360)),  # 1
    Part.LineSegment(App.Vector(-17.6, -45.5, 0), App.Vector(-17.6, -40.5, 0)),  # 2
    Part.ArcOfCircle(Part.Circle(App.Vector(-16.1, -40.5, 0), App.Vector(0, 0, 1), 1.5), math.radians(0), math.radians(180)),  # 3
    Part.LineSegment(App.Vector(14.6, -45.5, 0), App.Vector(14.6, -40.5, 0)),  # 4
    Part.ArcOfCircle(Part.Circle(App.Vector(16.1, -40.5, 0), App.Vector(0, 0, 1), 1.5), math.radians(0), math.radians(180)),  # 5
    Part.LineSegment(App.Vector(17.6, -40.5, 0), App.Vector(17.6, -45.5, 0)),  # 6
    Part.ArcOfCircle(Part.Circle(App.Vector(16.1, -45.5, 0), App.Vector(0, 0, 1), 1.5), math.radians(180), math.radians(360)),  # 7
], False)
sketch7.addConstraint([
    Sketcher.Constraint("Tangent", 0, 2, 1, 2),
    Sketcher.Constraint("Tangent", 1, 1, 2, 1),
    Sketcher.Constraint("Tangent", 2, 2, 3, 2),
    Sketcher.Constraint("Tangent", 3, 1, 0, 1),
    Sketcher.Constraint("Tangent", 4, 2, 5, 2),
    Sketcher.Constraint("Tangent", 5, 1, 6, 1),
    Sketcher.Constraint("Tangent", 6, 2, 7, 2),
    Sketcher.Constraint("Tangent", 7, 1, 4, 1),
    Sketcher.Constraint("Vertical", 0),
    Sketcher.Constraint("Vertical", 2),
    Sketcher.Constraint("Vertical", 4),
    Sketcher.Constraint("Vertical", 6),
    Sketcher.Constraint("Equal", 3, 5),
    Sketcher.Constraint("Symmetric", 3, 3, 5, 3, -2),
    Sketcher.Constraint("Horizontal", 1, 3, 7, 3),
    Sketcher.Constraint("Radius", 1, Q("1.5 mm")),
    Sketcher.Constraint("DistanceY", 0, 2, 0, 1, Q("5 mm")),
    Sketcher.Constraint("DistanceY", 1, 3, -1, 1, Q("45.5 mm")),
    Sketcher.Constraint("DistanceX", 3, 3, 5, 3, Q("32.297001 mm")),
])
pocket1 = doc.addObject("PartDesign::Pocket", "Pocket")
body.addObject(pocket1)
pocket1.Profile = sketch7
pocket1.Type = "ThroughAll"
pocket1.Reversed = True

# Sketch on XZ plane
sketch8 = doc.addObject("Sketcher::SketchObject", "Sketch007")
body.addObject(sketch8)
sketch8.AttachmentSupport = (doc.XZ_Plane, [""])
sketch8.MapMode = "FlatFace"
sketch8.AttachmentOffset = App.Placement(App.Vector(0, 0, -3.175), App.Rotation())
add_polygon(sketch8, [(-30.3, -63.9), (-30.2, -66.2), (-65.1, -32.5), (-62.8, -32.5)])  # lines 0-3
add_polygon(sketch8, [(-69.5, 16.2), (-71.7, 15.7), (-43.1, 61.4), (-43.1, 58.4)])  # lines 4-7
add_polygon(sketch8, [(43.1, 61.4), (71.7, 15.7), (69.5, 16.2), (43.1, 58.4)])  # lines 8-11
add_polygon(sketch8, [(65.1, -32.5), (30.2, -66.2), (30.3, -63.9), (62.8, -32.5)])  # lines 12-15
sketch8.addConstraint([
    Sketcher.Constraint("Vertical", 6),
    Sketcher.Constraint("Vertical", 11),
    Sketcher.Constraint("Symmetric", 4, 2, 8, 2, -2),
    Sketcher.Constraint("Symmetric", 7, 2, 9, 2, -2),
    Sketcher.Constraint("Symmetric", 6, 2, 10, 2, -2),
    Sketcher.Constraint("Symmetric", 0, 2, 12, 2, -2),
    Sketcher.Constraint("Symmetric", 3, 2, 13, 2, -2),
    Sketcher.Constraint("Symmetric", 2, 2, 14, 2, -2),
    Sketcher.Constraint("Symmetric", 1, 2, 15, 2, -2),
    Sketcher.Constraint("Perpendicular", 0, 2),
    Sketcher.Constraint("Parallel", 1, 3),
    Sketcher.Constraint("Parallel", 5, 7),
    Sketcher.Constraint("Parallel", 8, 10),
    Sketcher.Constraint("Equal", 0, 2),
    Sketcher.Constraint("Equal", 2, 4),
    Sketcher.Constraint("Angle", 0, Q("-89 deg")),
    Sketcher.Constraint("Angle", 4, Q("-167 deg")),
    Sketcher.Constraint("Angle", 5, Q("58 deg")),
    Sketcher.Constraint("DistanceY", 0, 2, 4, 2, Q("81.827999 mm")),
    Sketcher.Constraint("DistanceY", 3, 2, 4, 2, Q("79.565602 mm")),
    Sketcher.Constraint("DistanceX", 7, 2, 1, 2, Q("4.422698 mm")),
    Sketcher.Constraint("Distance", 1, Q("48.40101 mm")),
    Sketcher.Constraint("DistanceX", 1, 2, -1, 1, Q("65.061951 mm")),
    Sketcher.Constraint("DistanceX", 5, 2, -1, 1, Q("43.094491 mm")),
    Sketcher.Constraint("DistanceY", -1, 1, 5, 2, Q("61.431621 mm")),
])
pad3 = doc.addObject("PartDesign::Pad", "Pad002")
body.addObject(pad3)
pad3.Profile = sketch8
pad3.Length = 3.175
doc.recompute()

fillet = doc.addObject("PartDesign::Fillet", "Fillet")
body.addObject(fillet)
fillet.Base = (pad3, edges_at(pad3, [
    (-30.245, 1.587, -66.158),
    (-65.062, 1.587, -32.536),
    (-71.689, 1.587, 15.67),
    (-43.094, 1.587, 61.432),
    (43.094, 1.587, 61.432),
    (71.689, 1.587, 15.67),
    (65.062, 1.587, -32.536),
    (30.245, 1.587, -66.158),
    (30.09, 1.587, -75.065),
    (73.969, 1.587, -32.691),
    (79.681, 1.587, 13.825),
    (28, 1.587, 58.55),
    (-28, 1.587, 58.55),
    (-79.681, 1.587, 13.825),
    (-73.969, 1.587, -32.691),
    (-30.09, 1.587, -75.065),
]))
fillet.Radius = 2
doc.recompute()

fillet2 = doc.addObject("PartDesign::Fillet", "Fillet001")
body.addObject(fillet2)
fillet2.Base = (fillet, edges_at(fillet, [
    (33.174, 1.587, -78.259),
    (77.054, 1.587, -35.885),
    (83.446, 1.587, 16.178),
    (43.094, 1.587, 64.827),
    (34, 1.587, 64.827),
    (34, 1.587, 53.55),
    (28, 1.587, 53.55),
    (-28, 1.587, 53.55),
    (-34, 1.587, 53.55),
    (-34, 1.587, 64.827),
    (-43.094, 1.587, 64.827),
    (-83.446, 1.587, 16.178),
    (-77.054, 1.587, -35.885),
    (-33.174, 1.587, -78.259),
    (-6.874, 1.587, 58.55),
    (6.874, 1.587, 58.55),
]))
fillet2.Radius = 1

# Sketch on XZ plane
sketch9 = doc.addObject("Sketcher::SketchObject", "Sketch008")
body.addObject(sketch9)
sketch9.AttachmentSupport = (doc.XZ_Plane, [""])
sketch9.MapMode = "FlatFace"
sketch9.AttachmentOffset = App.Placement(App.Vector(0, 0, -3.175), App.Rotation())
sketch9.addGeometry(Part.Circle(App.Vector(0, 53.5, 0), App.Vector(0, 0, 1), 5), False)
sketch9.addConstraint([
    Sketcher.Constraint("PointOnObject", 0, 3, -2),
    Sketcher.Constraint("Diameter", 0, Q("9.9 mm")),
    Sketcher.Constraint("DistanceY", -1, 1, 0, 3, Q("53.55 mm")),
])
pocket2 = doc.addObject("PartDesign::Pocket", "Pocket001")
body.addObject(pocket2)
pocket2.Profile = sketch9
pocket2.Type = "ThroughAll"
pocket2.Reversed = True

doc.recompute()
